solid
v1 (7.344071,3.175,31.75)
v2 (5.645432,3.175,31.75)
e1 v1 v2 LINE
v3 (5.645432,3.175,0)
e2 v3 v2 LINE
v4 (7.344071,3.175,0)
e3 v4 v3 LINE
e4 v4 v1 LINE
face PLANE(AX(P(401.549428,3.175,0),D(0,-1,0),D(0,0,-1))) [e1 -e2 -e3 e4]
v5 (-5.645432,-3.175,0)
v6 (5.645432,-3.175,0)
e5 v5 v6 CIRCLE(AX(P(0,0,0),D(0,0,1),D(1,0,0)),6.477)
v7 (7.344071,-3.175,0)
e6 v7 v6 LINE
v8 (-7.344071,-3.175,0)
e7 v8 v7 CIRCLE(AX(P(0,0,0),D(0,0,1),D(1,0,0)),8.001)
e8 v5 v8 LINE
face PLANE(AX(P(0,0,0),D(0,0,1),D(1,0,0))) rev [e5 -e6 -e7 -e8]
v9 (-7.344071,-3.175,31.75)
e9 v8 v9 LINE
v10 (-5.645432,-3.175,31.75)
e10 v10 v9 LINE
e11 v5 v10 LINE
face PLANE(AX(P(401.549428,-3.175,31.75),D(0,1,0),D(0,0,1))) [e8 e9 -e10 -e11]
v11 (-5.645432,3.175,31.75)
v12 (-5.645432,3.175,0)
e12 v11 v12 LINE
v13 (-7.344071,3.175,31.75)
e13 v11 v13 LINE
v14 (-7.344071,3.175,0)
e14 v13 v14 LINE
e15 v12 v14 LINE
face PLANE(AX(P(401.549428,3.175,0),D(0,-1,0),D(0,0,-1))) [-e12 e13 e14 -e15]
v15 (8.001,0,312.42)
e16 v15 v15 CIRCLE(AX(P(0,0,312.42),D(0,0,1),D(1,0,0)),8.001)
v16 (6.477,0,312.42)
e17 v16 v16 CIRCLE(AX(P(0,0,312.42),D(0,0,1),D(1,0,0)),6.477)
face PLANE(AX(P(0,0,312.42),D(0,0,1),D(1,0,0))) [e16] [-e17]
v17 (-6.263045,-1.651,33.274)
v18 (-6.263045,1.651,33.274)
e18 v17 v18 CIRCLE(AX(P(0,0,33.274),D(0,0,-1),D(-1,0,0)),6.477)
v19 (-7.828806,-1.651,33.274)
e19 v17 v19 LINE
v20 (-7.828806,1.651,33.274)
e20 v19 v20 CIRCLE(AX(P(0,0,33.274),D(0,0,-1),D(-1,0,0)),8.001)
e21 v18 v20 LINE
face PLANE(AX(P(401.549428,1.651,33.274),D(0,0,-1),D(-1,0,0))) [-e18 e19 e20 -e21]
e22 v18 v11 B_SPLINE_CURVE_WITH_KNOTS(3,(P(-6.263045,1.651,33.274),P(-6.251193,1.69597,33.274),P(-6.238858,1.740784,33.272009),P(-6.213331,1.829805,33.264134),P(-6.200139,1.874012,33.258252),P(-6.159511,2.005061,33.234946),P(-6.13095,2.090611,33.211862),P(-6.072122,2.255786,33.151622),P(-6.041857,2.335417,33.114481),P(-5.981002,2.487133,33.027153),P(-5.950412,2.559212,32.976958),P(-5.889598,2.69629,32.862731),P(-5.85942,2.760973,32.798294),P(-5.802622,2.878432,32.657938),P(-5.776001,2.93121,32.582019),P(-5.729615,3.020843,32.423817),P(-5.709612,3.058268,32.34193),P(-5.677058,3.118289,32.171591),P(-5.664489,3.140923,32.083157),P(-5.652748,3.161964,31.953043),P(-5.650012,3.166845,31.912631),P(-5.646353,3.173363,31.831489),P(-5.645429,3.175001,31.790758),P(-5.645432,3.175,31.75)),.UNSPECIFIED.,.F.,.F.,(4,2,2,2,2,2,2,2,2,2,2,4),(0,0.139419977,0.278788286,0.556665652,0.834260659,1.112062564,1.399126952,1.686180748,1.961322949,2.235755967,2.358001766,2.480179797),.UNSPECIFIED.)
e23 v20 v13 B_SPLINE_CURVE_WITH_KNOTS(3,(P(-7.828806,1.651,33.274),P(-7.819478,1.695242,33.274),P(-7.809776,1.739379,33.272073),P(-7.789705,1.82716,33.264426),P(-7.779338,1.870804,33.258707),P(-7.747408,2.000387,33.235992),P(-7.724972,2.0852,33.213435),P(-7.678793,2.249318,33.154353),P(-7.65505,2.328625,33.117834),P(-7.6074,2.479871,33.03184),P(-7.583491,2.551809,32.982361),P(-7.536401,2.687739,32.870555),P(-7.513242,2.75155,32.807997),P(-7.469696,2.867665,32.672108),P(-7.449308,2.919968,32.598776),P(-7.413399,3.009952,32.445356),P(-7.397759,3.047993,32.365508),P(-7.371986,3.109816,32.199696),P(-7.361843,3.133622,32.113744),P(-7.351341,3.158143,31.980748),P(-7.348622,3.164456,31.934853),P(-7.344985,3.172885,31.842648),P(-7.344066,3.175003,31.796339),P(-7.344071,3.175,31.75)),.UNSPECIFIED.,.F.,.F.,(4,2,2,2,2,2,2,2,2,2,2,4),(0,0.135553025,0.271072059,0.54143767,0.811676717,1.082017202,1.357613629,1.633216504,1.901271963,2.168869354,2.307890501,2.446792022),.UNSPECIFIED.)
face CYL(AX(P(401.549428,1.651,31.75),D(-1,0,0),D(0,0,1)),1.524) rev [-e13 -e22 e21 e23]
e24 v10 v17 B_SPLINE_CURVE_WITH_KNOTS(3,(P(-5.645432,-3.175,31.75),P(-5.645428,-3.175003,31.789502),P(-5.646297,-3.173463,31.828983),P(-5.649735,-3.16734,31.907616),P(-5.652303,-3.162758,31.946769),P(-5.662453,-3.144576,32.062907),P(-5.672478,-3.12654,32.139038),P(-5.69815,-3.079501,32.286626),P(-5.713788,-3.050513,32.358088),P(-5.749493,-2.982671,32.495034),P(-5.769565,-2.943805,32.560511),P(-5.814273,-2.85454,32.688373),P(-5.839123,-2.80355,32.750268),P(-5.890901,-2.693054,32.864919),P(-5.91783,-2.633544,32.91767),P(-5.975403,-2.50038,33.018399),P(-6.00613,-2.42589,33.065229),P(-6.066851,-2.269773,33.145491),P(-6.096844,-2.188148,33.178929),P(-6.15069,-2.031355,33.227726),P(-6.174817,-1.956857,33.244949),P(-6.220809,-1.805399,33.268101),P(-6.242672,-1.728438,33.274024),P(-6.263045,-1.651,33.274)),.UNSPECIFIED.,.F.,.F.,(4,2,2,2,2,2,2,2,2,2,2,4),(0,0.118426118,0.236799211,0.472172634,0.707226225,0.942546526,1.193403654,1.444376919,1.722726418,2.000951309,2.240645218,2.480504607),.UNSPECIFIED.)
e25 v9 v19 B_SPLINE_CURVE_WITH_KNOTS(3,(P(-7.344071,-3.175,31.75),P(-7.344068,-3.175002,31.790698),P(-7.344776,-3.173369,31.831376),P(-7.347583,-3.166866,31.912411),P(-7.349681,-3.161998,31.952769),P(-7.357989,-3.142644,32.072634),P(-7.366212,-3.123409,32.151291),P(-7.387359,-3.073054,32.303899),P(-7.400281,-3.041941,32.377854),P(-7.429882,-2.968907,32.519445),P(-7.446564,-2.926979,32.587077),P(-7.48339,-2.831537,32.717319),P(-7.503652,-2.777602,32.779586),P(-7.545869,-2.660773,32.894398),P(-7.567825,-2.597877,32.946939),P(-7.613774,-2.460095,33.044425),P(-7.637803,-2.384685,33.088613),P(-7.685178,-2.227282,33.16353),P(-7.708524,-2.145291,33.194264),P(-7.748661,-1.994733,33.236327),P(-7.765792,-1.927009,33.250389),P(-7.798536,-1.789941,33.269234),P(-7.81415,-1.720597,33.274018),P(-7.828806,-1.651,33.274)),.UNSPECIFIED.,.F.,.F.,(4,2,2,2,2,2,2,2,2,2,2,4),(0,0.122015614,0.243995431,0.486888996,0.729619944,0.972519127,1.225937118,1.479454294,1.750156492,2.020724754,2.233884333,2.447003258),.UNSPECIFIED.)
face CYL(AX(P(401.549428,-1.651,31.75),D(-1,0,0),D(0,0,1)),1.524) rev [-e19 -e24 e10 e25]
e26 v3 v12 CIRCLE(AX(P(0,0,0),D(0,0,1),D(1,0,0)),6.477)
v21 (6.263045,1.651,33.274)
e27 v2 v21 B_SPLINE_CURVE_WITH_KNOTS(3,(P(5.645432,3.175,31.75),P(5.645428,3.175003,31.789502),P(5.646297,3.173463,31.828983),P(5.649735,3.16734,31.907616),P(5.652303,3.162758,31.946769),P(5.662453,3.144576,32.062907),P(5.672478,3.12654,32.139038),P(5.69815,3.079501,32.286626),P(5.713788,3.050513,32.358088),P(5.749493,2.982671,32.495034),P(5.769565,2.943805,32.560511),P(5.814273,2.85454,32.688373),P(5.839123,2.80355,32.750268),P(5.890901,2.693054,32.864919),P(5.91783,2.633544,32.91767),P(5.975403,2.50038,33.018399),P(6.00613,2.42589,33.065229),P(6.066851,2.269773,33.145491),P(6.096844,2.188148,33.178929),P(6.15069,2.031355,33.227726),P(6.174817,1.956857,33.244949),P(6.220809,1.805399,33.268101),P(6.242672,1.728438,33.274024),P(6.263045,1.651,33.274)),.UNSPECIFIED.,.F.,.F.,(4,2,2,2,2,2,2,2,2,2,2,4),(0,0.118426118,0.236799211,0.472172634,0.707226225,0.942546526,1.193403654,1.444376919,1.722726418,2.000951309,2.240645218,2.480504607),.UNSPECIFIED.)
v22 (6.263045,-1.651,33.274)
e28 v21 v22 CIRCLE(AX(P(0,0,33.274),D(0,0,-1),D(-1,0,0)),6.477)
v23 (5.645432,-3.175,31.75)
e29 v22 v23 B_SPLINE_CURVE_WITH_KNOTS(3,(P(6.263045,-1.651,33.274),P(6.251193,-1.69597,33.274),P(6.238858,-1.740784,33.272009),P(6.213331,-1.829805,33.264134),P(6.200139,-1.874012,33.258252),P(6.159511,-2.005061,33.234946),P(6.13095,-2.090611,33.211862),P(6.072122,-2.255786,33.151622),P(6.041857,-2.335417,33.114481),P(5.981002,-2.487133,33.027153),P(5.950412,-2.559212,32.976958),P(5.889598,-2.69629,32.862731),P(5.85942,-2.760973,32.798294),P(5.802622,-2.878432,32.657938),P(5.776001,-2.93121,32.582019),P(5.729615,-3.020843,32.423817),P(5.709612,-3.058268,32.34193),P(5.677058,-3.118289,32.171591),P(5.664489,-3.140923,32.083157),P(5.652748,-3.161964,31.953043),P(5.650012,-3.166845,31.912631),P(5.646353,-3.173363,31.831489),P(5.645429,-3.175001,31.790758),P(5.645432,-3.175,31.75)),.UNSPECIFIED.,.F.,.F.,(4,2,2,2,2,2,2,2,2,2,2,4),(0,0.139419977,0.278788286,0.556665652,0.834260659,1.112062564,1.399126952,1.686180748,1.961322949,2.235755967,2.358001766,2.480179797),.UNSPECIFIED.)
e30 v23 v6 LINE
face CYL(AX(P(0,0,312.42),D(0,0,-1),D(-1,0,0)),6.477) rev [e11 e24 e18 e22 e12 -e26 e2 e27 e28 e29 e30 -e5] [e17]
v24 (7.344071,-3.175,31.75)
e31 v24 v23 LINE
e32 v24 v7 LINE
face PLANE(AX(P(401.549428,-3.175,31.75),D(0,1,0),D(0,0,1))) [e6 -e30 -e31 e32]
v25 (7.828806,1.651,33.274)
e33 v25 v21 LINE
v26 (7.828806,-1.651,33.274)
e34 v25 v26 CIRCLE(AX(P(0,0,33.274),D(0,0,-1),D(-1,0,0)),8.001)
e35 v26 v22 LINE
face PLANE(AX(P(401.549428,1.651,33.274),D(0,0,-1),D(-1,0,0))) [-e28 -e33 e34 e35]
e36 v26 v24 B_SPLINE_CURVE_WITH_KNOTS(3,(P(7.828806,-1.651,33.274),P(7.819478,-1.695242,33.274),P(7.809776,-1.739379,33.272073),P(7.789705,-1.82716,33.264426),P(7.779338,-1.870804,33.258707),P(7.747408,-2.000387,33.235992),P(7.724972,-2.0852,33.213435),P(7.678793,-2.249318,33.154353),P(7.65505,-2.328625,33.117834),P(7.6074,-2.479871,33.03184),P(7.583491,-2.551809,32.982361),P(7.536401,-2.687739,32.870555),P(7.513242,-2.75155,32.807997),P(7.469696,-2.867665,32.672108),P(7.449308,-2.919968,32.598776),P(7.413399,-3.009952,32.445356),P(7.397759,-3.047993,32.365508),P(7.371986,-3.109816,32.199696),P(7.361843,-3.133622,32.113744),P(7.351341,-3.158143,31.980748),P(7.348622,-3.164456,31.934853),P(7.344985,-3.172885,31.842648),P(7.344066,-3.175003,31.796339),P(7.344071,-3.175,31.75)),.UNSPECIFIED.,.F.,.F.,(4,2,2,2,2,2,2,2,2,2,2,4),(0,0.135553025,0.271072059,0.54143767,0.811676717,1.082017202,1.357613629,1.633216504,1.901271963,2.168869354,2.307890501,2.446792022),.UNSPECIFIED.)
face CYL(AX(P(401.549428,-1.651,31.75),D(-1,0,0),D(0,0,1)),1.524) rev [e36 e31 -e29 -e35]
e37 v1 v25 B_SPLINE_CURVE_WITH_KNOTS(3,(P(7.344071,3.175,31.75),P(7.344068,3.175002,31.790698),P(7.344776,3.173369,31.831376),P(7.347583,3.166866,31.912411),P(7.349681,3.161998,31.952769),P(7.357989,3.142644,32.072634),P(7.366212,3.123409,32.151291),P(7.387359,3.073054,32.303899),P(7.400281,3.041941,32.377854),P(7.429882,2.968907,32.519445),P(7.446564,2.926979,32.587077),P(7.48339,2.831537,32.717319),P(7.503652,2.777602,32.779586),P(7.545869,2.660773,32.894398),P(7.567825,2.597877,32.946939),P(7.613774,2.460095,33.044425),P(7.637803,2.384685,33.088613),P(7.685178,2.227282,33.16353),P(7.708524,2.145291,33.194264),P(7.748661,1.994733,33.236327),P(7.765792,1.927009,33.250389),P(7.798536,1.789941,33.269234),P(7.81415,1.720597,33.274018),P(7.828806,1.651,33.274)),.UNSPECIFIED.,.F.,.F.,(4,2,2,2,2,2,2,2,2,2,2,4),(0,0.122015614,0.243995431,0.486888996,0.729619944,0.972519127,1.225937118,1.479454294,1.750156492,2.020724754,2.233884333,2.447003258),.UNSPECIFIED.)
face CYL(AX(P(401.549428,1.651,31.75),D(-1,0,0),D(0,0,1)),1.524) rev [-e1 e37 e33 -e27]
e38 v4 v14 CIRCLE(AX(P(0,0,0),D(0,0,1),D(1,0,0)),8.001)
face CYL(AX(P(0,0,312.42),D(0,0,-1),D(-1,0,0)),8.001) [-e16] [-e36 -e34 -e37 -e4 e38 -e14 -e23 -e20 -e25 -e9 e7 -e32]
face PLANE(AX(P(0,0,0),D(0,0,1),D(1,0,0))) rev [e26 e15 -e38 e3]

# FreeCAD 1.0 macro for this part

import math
import FreeCAD as App
import Part
import Sketcher
from FreeCAD import Vector
Q = App.Units.Quantity

doc = App.newDocument("Part")
body = doc.addObject("PartDesign::Body", "Body")

# Sketch on XY plane
sketch1 = body.newObject("Sketcher::SketchObject", "Sketch")
sketch1.AttachmentSupport = (doc.getObject("XY_Plane"), [""])
sketch1.MapMode = "FlatFace"
sketch1.addGeometry([
    Part.Circle(Vector(0, 0, 0), Vector(0, 0, 1), 8),
    Part.Circle(Vector(0, 0, 0), Vector(0, 0, 1), 6),
], False)
sketch1.addConstraint([
    Sketcher.Constraint("Coincident", 0, 3, -1, 1),
    Sketcher.Constraint("Coincident", 1, 3, -1, 1),
    Sketcher.Constraint("Diameter", 0, Q("0.63 in")),
    Sketcher.Constraint("Diameter", 1, Q("0.51 in")),
])
pad1 = body.newObject("PartDesign::Pad", "Pad")
pad1.Profile = sketch1
pad1.Length = Q("12.3 in")

# Sketch on YZ plane
sketch2 = body.newObject("Sketcher::SketchObject", "Sketch001")
sketch2.AttachmentSupport = (doc.getObject("YZ_Plane"), [""])
sketch2.MapMode = "FlatFace"
sketch2.addGeometry([
    Part.ArcOfCircle(Part.Circle(Vector(1.7, 31.8, 0), Vector(0, 0, 1), 1.5), math.radians(0), math.radians(90)),  # 0
    Part.LineSegment(Vector(1.7, 33.3, 0), Vector(-1.7, 33.3, 0)),  # 1
    Part.ArcOfCircle(Part.Circle(Vector(-1.7, 31.8, 0), Vector(0, 0, 1), 1.5), math.radians(90), math.radians(180)),  # 2
    Part.LineSegment(Vector(-3.2, 31.8, 0), Vector(-3.2, -1905.7, 0)),  # 3
    Part.LineSegment(Vector(-3.2, -1905.7, 0), Vector(3.2, -1905.7, 0)),  # 4
    Part.LineSegment(Vector(3.2, -1905.7, 0), Vector(3.2, 31.8, 0)),  # 5
], False)
sketch2.addConstraint([
    Sketcher.Constraint("Tangent", 0, 2, 1, 1),
    Sketcher.Constraint("Tangent", 1, 2, 2, 1),
    Sketcher.Constraint("Tangent", 2, 2, 3, 1),
    Sketcher.Constraint("Coincident", 3, 2, 4, 1),
    Sketcher.Constraint("Coincident", 4, 2, 5, 1),
    Sketcher.Constraint("Tangent", 5, 2, 0, 1),
    Sketcher.Constraint("Horizontal", 1),
    Sketcher.Constraint("Vertical", 3),
    Sketcher.Constraint("Horizontal", 4),
    Sketcher.Constraint("Vertical", 5),
    Sketcher.Constraint("Equal", 0, 2),
    Sketcher.Constraint("Radius", 0, Q("0.06 in")),
    Sketcher.Constraint("DistanceX", 1, 2, 1, 1, Q("0.13 in")),
    Sketcher.Constraint("DistanceY", -1, 1, 0, 3, Q("1.25 in")),
    Sketcher.Constraint("DistanceX", -1, 1, 0, 3, Q("0.065 in")),
    Sketcher.Constraint("DistanceY", 3, 2, 3, 1, Q("1937.468992 mm")),
])
pocket1 = body.newObject("PartDesign::Pocket", "Pocket")
pocket1.Profile = sketch2
pocket1.Type = "ThroughAll"
pocket1.Midplane = True

doc.recompute()
